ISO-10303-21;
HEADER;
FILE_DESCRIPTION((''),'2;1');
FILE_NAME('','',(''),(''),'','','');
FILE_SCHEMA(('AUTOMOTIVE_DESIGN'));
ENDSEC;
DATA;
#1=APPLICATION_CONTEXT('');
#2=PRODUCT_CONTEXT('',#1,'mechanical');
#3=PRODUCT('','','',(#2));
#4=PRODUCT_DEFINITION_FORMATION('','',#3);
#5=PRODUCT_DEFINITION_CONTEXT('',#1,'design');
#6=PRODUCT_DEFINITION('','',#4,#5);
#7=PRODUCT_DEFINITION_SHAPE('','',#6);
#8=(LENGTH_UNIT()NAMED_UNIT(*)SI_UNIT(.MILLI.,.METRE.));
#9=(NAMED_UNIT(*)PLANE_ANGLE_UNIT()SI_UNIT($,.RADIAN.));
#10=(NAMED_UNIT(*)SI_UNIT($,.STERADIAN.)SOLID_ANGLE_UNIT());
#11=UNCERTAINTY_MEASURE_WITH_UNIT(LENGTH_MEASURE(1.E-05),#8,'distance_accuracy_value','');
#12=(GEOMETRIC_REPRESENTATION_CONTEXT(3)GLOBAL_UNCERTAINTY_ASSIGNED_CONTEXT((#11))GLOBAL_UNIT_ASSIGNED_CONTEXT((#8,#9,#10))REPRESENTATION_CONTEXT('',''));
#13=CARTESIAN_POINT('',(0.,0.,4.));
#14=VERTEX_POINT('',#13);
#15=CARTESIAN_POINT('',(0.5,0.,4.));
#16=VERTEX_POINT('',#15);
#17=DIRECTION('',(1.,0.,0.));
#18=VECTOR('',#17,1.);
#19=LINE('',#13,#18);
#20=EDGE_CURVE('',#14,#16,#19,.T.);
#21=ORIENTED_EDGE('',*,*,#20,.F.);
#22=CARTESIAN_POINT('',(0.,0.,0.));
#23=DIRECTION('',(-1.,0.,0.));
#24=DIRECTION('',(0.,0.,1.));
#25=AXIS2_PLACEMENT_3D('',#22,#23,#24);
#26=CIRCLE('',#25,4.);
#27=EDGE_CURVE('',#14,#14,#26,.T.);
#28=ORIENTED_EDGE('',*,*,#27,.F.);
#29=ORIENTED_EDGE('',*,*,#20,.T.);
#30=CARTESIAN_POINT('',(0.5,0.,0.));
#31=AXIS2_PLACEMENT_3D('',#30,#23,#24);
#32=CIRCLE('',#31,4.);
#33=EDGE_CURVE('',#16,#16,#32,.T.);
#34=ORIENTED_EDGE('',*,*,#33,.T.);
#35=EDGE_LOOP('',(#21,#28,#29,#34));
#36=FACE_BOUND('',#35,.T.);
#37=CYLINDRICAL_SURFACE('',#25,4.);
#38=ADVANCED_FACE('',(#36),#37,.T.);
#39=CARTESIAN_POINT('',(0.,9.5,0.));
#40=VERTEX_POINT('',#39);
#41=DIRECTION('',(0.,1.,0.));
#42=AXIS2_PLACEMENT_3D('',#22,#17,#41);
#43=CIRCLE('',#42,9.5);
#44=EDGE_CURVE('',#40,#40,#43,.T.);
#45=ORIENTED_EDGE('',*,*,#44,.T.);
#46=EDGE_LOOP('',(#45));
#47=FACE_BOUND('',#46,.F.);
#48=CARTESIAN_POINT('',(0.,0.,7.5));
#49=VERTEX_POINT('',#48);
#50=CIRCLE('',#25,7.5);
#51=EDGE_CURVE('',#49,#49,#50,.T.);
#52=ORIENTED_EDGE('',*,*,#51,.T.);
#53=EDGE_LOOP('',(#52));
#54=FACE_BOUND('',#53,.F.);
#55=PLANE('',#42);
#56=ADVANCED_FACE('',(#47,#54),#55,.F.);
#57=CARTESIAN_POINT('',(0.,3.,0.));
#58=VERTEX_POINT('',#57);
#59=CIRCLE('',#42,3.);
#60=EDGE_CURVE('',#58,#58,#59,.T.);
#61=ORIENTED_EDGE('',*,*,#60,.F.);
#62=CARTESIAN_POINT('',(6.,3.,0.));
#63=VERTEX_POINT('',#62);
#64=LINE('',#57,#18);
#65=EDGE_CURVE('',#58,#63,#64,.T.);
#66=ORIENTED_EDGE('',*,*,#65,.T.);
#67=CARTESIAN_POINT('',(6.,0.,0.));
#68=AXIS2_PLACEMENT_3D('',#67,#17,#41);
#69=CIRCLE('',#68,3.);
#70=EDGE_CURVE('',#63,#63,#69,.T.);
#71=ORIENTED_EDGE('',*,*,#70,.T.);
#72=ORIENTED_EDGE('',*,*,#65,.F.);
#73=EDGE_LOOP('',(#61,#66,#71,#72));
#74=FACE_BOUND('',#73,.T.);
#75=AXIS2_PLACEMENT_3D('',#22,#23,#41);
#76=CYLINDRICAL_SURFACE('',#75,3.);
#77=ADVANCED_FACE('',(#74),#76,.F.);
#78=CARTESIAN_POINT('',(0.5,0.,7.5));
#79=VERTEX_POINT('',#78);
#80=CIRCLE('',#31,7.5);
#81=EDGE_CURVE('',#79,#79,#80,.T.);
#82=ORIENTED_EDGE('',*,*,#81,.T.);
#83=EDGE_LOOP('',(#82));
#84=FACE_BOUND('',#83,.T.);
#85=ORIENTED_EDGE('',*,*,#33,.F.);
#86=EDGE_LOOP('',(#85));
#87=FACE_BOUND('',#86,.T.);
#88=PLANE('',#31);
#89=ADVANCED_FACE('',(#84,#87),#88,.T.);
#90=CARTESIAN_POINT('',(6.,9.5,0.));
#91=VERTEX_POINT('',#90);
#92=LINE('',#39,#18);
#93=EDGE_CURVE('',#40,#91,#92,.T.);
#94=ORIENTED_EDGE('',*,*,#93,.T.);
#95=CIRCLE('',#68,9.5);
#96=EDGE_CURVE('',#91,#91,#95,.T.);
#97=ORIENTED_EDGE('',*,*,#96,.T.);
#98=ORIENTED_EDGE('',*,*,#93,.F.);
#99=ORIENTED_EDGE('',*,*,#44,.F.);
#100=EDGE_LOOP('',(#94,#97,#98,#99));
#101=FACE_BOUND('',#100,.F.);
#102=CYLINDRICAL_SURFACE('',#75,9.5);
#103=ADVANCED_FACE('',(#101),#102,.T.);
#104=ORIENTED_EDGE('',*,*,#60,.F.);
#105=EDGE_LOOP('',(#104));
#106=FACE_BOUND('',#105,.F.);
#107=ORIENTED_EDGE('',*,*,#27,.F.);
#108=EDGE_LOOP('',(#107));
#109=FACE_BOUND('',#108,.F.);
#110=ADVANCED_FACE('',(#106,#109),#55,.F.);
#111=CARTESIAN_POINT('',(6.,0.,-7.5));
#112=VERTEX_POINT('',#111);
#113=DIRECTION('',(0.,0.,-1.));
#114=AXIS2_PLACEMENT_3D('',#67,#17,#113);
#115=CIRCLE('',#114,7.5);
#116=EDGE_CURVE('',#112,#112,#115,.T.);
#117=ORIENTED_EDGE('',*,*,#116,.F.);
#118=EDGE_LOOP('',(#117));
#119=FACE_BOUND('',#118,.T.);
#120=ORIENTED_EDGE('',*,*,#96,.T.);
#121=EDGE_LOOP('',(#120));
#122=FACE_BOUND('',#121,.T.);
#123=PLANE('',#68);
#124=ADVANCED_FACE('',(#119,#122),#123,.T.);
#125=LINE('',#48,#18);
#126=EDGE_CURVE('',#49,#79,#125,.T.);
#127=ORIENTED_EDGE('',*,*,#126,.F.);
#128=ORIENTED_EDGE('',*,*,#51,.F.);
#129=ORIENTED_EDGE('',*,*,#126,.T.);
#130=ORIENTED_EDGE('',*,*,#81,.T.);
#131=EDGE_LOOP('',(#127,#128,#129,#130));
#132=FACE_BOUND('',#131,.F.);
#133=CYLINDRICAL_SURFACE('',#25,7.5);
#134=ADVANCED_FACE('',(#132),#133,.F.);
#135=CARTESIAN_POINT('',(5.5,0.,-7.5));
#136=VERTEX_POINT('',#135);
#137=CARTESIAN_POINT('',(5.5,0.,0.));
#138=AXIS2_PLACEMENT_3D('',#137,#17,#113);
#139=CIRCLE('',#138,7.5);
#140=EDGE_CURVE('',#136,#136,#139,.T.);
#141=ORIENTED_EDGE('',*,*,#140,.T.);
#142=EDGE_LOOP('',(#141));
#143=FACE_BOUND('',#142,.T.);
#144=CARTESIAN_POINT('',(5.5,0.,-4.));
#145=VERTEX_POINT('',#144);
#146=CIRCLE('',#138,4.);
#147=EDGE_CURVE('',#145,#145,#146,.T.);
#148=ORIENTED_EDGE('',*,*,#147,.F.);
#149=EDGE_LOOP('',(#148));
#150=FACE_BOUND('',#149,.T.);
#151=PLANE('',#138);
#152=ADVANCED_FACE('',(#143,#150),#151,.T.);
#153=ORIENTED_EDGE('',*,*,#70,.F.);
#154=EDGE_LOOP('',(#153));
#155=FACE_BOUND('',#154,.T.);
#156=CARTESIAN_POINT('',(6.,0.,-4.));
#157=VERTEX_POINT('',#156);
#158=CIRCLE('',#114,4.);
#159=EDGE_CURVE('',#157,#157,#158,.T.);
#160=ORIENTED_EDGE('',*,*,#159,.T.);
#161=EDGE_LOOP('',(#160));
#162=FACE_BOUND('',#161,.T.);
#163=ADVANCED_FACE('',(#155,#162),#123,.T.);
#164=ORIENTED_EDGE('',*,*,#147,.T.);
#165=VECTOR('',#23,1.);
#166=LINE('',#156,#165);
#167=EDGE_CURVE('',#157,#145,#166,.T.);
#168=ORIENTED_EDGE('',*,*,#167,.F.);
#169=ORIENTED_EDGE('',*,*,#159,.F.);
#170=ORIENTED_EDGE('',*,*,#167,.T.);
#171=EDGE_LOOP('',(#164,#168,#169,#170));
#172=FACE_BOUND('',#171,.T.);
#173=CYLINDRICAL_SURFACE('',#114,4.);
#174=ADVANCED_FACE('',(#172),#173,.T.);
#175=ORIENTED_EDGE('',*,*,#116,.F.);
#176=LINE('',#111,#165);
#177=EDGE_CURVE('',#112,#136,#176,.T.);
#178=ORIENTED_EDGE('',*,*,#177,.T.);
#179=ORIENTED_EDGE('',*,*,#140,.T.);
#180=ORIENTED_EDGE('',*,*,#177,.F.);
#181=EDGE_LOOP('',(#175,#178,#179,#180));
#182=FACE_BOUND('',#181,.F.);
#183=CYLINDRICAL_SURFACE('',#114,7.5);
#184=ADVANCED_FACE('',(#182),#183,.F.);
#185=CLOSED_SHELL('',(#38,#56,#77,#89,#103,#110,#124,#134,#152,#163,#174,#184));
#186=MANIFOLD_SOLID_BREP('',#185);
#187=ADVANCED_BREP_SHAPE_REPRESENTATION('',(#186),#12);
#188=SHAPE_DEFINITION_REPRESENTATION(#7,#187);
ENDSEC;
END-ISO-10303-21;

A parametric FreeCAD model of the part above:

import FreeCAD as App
import Part
import Sketcher
Q = App.Units.Quantity

doc = App.newDocument("Part")
body = doc.addObject("PartDesign::Body", "Body")

# Sketch on YZ plane
sketch1 = body.newObject("Sketcher::SketchObject", "Sketch")
sketch1.AttachmentSupport = (doc.getObject("YZ_Plane"), [""])
sketch1.MapMode = "FlatFace"
sketch1.addGeometry([
    Part.Circle(App.Vector(0, 0, 0), App.Vector(0, 0, 1), 9.5),
    Part.Circle(App.Vector(0, 0, 0), App.Vector(0, 0, 1), 3),
], False)
sketch1.addConstraint([
    Sketcher.Constraint("Coincident", 0, 3, -1, 1),
    Sketcher.Constraint("Coincident", 1, 3, -1, 1),
    Sketcher.Constraint("Diameter", 0, Q("19 mm")),
    Sketcher.Constraint("Diameter", 1, Q("6 mm")),
])
pad1 = body.newObject("PartDesign::Pad", "Pad")
pad1.Profile = sketch1
pad1.Length = 6

# Sketch on YZ plane
sketch2 = body.newObject("Sketcher::SketchObject", "Sketch001")
sketch2.AttachmentSupport = (doc.getObject("YZ_Plane"), [""])
sketch2.MapMode = "FlatFace"
sketch2.AttachmentOffset = App.Placement(App.Vector(0, 0, 6), App.Rotation())
sketch2.addGeometry([
    Part.Circle(App.Vector(0, 0, 0), App.Vector(0, 0, 1), 7.5),
    Part.Circle(App.Vector(0, 0, 0), App.Vector(0, 0, 1), 4),
], False)
sketch2.addConstraint([
    Sketcher.Constraint("Coincident", 0, 3, -1, 1),
    Sketcher.Constraint("Coincident", 1, 3, -1, 1),
    Sketcher.Constraint("Diameter", 0, Q("15 mm")),
    Sketcher.Constraint("Diameter", 1, Q("8 mm")),
])
pocket1 = body.newObject("PartDesign::Pocket", "Pocket")
pocket1.Profile = sketch2
pocket1.Length = 0.5

# Sketch on YZ plane
sketch3 = body.newObject("Sketcher::SketchObject", "Sketch002")
sketch3.AttachmentSupport = (doc.getObject("YZ_Plane"), [""])
sketch3.MapMode = "FlatFace"
sketch3.addGeometry([
    Part.Circle(App.Vector(0, 0, 0), App.Vector(0, 0, 1), 7.5),
    Part.Circle(App.Vector(0, 0, 0), App.Vector(0, 0, 1), 4),
], False)
sketch3.addConstraint([
    Sketcher.Constraint("Coincident", 0, 3, -1, 1),
    Sketcher.Constraint("Coincident", 1, 3, -1, 1),
    Sketcher.Constraint("Diameter", 0, Q("15 mm")),
    Sketcher.Constraint("Diameter", 1, Q("8 mm")),
])
pocket2 = body.newObject("PartDesign::Pocket", "Pocket001")
pocket2.Profile = sketch3
pocket2.Length = 0.5
pocket2.Reversed = True

doc.recompute()
